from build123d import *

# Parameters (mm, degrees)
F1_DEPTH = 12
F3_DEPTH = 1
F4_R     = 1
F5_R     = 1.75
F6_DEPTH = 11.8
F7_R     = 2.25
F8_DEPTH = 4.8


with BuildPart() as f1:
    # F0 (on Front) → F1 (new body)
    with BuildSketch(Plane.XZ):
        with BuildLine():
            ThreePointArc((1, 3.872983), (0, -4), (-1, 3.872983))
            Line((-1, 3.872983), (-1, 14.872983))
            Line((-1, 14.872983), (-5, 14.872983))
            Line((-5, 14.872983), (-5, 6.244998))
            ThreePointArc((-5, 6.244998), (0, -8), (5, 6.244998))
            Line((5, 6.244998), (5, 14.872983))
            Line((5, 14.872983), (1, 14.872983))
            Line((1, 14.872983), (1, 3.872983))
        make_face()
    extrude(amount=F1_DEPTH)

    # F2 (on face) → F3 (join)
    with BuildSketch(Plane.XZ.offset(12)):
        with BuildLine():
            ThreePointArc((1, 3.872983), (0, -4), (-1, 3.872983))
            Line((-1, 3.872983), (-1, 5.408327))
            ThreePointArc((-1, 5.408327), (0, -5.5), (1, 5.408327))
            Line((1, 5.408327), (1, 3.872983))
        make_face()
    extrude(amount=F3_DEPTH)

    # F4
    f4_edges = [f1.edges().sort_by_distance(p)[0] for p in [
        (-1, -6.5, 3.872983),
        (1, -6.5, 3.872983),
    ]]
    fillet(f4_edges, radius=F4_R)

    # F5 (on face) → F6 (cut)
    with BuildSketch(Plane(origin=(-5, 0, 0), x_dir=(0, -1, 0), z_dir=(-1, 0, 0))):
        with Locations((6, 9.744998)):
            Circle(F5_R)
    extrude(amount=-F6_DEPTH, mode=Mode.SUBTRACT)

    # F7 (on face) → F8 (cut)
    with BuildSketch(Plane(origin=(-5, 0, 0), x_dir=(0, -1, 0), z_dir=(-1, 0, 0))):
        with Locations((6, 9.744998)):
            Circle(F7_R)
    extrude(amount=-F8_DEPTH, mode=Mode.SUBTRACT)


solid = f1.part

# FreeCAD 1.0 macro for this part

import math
import FreeCAD as App
import Part
import Sketcher

V = App.Vector
Q = App.Units.Quantity


def edges_at(feature, points):
    """Names of the edges that pass closest to the given points."""
    edges = feature.Shape.Edges
    near = lambda p: min(range(len(edges)), key=lambda i: edges[i].distToShape(Part.Vertex(*p))[0])
    return sorted({f"Edge{near(p) + 1}" for p in points})

doc = App.newDocument("Part")
body = doc.addObject("PartDesign::Body", "Body")

sketch1 = doc.addObject("Sketcher::SketchObject", "Sketch")
body.addObject(sketch1)
sketch1.AttachmentSupport = (doc.XZ_Plane, [""])
sketch1.MapMode = "FlatFace"
sketch1.addGeometry([
    Part.ArcOfCircle(Part.Circle(V(0, 0, 0), V(0, 0, 1), 4), math.radians(104), math.radians(436)),
    Part.LineSegment(V(-1, 3.9, 0), V(-1, 14.9, 0)),
    Part.LineSegment(V(-1, 14.9, 0), V(-5, 14.9, 0)),
    Part.LineSegment(V(-5, 14.9, 0), V(-5, 6.2, 0)),
    Part.ArcOfCircle(Part.Circle(V(0, 0, 0), V(0, 0, 1), 8), math.radians(129), math.radians(411)),
    Part.LineSegment(V(5, 6.2, 0), V(5, 14.9, 0)),
    Part.LineSegment(V(5, 14.9, 0), V(1, 14.9, 0)),
    Part.LineSegment(V(1, 14.9, 0), V(1, 3.9, 0)),
], False)
sketch1.addConstraint([
    Sketcher.Constraint("Coincident", 0, 1, 1, 1),
    Sketcher.Constraint("Coincident", 1, 2, 2, 1),
    Sketcher.Constraint("Coincident", 2, 2, 3, 1),
    Sketcher.Constraint("Coincident", 3, 2, 4, 1),
    Sketcher.Constraint("Coincident", 4, 2, 5, 1),
    Sketcher.Constraint("Coincident", 5, 2, 6, 1),
    Sketcher.Constraint("Coincident", 6, 2, 7, 1),
    Sketcher.Constraint("Coincident", 7, 2, 0, 2),
    Sketcher.Constraint("Vertical", 1),
    Sketcher.Constraint("Horizontal", 2),
    Sketcher.Constraint("Vertical", 3),
    Sketcher.Constraint("Vertical", 5),
    Sketcher.Constraint("Horizontal", 6),
    Sketcher.Constraint("Vertical", 7),
    Sketcher.Constraint("Coincident", 0, 3, -1, 1),
    Sketcher.Constraint("Coincident", 4, 3, -1, 1),
    Sketcher.Constraint("Symmetric", 2, 2, 5, 2, -2),
    Sketcher.Constraint("Horizontal", 0, 1, 7, 2),
    Sketcher.Constraint("Radius", 0, Q("4 mm")),
    Sketcher.Constraint("Radius", 4, Q("8 mm")),
    Sketcher.Constraint("DistanceX", 2, 2, 2, 1, Q("4 mm")),
    Sketcher.Constraint("DistanceY", 1, 1, 1, 2, Q("11 mm")),
    Sketcher.Constraint("DistanceX", 0, 1, -1, 1, Q("1 mm")),
])
pad1 = doc.addObject("PartDesign::Pad", "Pad")
body.addObject(pad1)
pad1.Profile = sketch1
pad1.Length = 12

sketch2 = doc.addObject("Sketcher::SketchObject", "Sketch001")
body.addObject(sketch2)
sketch2.AttachmentSupport = (doc.XZ_Plane, [""])
sketch2.MapMode = "FlatFace"
sketch2.AttachmentOffset = App.Placement(V(0, 0, 12), App.Rotation())
sketch2.addGeometry([
    Part.ArcOfCircle(Part.Circle(V(0, 0, 0), V(0, 0, 1), 4), math.radians(104), math.radians(436)),
    Part.LineSegment(V(-1, 3.9, 0), V(-1, 5.4, 0)),
    Part.ArcOfCircle(Part.Circle(V(0, 0, 0), V(0, 0, 1), 5.5), math.radians(100), math.radians(440)),
    Part.LineSegment(V(1, 5.4, 0), V(1, 3.9, 0)),
], False)
sketch2.addConstraint([
    Sketcher.Constraint("Coincident", 0, 1, 1, 1),
    Sketcher.Constraint("Coincident", 1, 2, 2, 1),
    Sketcher.Constraint("Coincident", 2, 2, 3, 1),
    Sketcher.Constraint("Coincident", 3, 2, 0, 2),
    Sketcher.Constraint("Vertical", 1),
    Sketcher.Constraint("Vertical", 3),
    Sketcher.Constraint("Coincident", 0, 3, -1, 1),
    Sketcher.Constraint("Coincident", 2, 3, -1, 1),
    Sketcher.Constraint("Horizontal", 1, 2, 2, 2),
    Sketcher.Constraint("Radius", 0, Q("4 mm")),
    Sketcher.Constraint("Radius", 2, Q("5.5 mm")),
    Sketcher.Constraint("DistanceX", 0, 1, -1, 1, Q("1 mm")),
])
pad2 = doc.addObject("PartDesign::Pad", "Pad001")
body.addObject(pad2)
pad2.Profile = sketch2
pad2.Length = 1
doc.recompute()

fillet = doc.addObject("PartDesign::Fillet", "Fillet")
body.addObject(fillet)
fillet.Base = (pad2, edges_at(pad2, [(-1, -6.5, 3.873), (1, -6.5, 3.873)]))
fillet.Radius = 1

sketch3 = doc.addObject("Sketcher::SketchObject", "Sketch002")
body.addObject(sketch3)
sketch3.AttachmentSupport = (doc.YZ_Plane, [""])
sketch3.MapMode = "FlatFace"
sketch3.AttachmentOffset = App.Placement(V(0, 0, -5), App.Rotation())
sketch3.addGeometry(Part.Circle(V(-6, 9.7, 0), V(0, 0, 1), 1.8), False)
sketch3.addConstraint([
    Sketcher.Constraint("Diameter", 0, Q("3.5 mm")),
    Sketcher.Constraint("DistanceX", 0, 3, -1, 1, Q("6 mm")),
    Sketcher.Constraint("DistanceY", -1, 1, 0, 3, Q("9.744998 mm")),
])
pocket1 = doc.addObject("PartDesign::Pocket", "Pocket")
body.addObject(pocket1)
pocket1.Profile = sketch3
pocket1.Length = 11.8
pocket1.Reversed = True

sketch4 = doc.addObject("Sketcher::SketchObject", "Sketch003")
body.addObject(sketch4)
sketch4.AttachmentSupport = (doc.YZ_Plane, [""])
sketch4.MapMode = "FlatFace"
sketch4.AttachmentOffset = App.Placement(V(0, 0, -5), App.Rotation())
sketch4.addGeometry(Part.Circle(V(-6, 9.7, 0), V(0, 0, 1), 2.2), False)
sketch4.addConstraint([
    Sketcher.Constraint("Diameter", 0, Q("4.5 mm")),
    Sketcher.Constraint("DistanceX", 0, 3, -1, 1, Q("6 mm")),
    Sketcher.Constraint("DistanceY", -1, 1, 0, 3, Q("9.744998 mm")),
])
pocket2 = doc.addObject("PartDesign::Pocket", "Pocket001")
body.addObject(pocket2)
pocket2.Profile = sketch4
pocket2.Length = 4.8
pocket2.Reversed = True

doc.recompute()
